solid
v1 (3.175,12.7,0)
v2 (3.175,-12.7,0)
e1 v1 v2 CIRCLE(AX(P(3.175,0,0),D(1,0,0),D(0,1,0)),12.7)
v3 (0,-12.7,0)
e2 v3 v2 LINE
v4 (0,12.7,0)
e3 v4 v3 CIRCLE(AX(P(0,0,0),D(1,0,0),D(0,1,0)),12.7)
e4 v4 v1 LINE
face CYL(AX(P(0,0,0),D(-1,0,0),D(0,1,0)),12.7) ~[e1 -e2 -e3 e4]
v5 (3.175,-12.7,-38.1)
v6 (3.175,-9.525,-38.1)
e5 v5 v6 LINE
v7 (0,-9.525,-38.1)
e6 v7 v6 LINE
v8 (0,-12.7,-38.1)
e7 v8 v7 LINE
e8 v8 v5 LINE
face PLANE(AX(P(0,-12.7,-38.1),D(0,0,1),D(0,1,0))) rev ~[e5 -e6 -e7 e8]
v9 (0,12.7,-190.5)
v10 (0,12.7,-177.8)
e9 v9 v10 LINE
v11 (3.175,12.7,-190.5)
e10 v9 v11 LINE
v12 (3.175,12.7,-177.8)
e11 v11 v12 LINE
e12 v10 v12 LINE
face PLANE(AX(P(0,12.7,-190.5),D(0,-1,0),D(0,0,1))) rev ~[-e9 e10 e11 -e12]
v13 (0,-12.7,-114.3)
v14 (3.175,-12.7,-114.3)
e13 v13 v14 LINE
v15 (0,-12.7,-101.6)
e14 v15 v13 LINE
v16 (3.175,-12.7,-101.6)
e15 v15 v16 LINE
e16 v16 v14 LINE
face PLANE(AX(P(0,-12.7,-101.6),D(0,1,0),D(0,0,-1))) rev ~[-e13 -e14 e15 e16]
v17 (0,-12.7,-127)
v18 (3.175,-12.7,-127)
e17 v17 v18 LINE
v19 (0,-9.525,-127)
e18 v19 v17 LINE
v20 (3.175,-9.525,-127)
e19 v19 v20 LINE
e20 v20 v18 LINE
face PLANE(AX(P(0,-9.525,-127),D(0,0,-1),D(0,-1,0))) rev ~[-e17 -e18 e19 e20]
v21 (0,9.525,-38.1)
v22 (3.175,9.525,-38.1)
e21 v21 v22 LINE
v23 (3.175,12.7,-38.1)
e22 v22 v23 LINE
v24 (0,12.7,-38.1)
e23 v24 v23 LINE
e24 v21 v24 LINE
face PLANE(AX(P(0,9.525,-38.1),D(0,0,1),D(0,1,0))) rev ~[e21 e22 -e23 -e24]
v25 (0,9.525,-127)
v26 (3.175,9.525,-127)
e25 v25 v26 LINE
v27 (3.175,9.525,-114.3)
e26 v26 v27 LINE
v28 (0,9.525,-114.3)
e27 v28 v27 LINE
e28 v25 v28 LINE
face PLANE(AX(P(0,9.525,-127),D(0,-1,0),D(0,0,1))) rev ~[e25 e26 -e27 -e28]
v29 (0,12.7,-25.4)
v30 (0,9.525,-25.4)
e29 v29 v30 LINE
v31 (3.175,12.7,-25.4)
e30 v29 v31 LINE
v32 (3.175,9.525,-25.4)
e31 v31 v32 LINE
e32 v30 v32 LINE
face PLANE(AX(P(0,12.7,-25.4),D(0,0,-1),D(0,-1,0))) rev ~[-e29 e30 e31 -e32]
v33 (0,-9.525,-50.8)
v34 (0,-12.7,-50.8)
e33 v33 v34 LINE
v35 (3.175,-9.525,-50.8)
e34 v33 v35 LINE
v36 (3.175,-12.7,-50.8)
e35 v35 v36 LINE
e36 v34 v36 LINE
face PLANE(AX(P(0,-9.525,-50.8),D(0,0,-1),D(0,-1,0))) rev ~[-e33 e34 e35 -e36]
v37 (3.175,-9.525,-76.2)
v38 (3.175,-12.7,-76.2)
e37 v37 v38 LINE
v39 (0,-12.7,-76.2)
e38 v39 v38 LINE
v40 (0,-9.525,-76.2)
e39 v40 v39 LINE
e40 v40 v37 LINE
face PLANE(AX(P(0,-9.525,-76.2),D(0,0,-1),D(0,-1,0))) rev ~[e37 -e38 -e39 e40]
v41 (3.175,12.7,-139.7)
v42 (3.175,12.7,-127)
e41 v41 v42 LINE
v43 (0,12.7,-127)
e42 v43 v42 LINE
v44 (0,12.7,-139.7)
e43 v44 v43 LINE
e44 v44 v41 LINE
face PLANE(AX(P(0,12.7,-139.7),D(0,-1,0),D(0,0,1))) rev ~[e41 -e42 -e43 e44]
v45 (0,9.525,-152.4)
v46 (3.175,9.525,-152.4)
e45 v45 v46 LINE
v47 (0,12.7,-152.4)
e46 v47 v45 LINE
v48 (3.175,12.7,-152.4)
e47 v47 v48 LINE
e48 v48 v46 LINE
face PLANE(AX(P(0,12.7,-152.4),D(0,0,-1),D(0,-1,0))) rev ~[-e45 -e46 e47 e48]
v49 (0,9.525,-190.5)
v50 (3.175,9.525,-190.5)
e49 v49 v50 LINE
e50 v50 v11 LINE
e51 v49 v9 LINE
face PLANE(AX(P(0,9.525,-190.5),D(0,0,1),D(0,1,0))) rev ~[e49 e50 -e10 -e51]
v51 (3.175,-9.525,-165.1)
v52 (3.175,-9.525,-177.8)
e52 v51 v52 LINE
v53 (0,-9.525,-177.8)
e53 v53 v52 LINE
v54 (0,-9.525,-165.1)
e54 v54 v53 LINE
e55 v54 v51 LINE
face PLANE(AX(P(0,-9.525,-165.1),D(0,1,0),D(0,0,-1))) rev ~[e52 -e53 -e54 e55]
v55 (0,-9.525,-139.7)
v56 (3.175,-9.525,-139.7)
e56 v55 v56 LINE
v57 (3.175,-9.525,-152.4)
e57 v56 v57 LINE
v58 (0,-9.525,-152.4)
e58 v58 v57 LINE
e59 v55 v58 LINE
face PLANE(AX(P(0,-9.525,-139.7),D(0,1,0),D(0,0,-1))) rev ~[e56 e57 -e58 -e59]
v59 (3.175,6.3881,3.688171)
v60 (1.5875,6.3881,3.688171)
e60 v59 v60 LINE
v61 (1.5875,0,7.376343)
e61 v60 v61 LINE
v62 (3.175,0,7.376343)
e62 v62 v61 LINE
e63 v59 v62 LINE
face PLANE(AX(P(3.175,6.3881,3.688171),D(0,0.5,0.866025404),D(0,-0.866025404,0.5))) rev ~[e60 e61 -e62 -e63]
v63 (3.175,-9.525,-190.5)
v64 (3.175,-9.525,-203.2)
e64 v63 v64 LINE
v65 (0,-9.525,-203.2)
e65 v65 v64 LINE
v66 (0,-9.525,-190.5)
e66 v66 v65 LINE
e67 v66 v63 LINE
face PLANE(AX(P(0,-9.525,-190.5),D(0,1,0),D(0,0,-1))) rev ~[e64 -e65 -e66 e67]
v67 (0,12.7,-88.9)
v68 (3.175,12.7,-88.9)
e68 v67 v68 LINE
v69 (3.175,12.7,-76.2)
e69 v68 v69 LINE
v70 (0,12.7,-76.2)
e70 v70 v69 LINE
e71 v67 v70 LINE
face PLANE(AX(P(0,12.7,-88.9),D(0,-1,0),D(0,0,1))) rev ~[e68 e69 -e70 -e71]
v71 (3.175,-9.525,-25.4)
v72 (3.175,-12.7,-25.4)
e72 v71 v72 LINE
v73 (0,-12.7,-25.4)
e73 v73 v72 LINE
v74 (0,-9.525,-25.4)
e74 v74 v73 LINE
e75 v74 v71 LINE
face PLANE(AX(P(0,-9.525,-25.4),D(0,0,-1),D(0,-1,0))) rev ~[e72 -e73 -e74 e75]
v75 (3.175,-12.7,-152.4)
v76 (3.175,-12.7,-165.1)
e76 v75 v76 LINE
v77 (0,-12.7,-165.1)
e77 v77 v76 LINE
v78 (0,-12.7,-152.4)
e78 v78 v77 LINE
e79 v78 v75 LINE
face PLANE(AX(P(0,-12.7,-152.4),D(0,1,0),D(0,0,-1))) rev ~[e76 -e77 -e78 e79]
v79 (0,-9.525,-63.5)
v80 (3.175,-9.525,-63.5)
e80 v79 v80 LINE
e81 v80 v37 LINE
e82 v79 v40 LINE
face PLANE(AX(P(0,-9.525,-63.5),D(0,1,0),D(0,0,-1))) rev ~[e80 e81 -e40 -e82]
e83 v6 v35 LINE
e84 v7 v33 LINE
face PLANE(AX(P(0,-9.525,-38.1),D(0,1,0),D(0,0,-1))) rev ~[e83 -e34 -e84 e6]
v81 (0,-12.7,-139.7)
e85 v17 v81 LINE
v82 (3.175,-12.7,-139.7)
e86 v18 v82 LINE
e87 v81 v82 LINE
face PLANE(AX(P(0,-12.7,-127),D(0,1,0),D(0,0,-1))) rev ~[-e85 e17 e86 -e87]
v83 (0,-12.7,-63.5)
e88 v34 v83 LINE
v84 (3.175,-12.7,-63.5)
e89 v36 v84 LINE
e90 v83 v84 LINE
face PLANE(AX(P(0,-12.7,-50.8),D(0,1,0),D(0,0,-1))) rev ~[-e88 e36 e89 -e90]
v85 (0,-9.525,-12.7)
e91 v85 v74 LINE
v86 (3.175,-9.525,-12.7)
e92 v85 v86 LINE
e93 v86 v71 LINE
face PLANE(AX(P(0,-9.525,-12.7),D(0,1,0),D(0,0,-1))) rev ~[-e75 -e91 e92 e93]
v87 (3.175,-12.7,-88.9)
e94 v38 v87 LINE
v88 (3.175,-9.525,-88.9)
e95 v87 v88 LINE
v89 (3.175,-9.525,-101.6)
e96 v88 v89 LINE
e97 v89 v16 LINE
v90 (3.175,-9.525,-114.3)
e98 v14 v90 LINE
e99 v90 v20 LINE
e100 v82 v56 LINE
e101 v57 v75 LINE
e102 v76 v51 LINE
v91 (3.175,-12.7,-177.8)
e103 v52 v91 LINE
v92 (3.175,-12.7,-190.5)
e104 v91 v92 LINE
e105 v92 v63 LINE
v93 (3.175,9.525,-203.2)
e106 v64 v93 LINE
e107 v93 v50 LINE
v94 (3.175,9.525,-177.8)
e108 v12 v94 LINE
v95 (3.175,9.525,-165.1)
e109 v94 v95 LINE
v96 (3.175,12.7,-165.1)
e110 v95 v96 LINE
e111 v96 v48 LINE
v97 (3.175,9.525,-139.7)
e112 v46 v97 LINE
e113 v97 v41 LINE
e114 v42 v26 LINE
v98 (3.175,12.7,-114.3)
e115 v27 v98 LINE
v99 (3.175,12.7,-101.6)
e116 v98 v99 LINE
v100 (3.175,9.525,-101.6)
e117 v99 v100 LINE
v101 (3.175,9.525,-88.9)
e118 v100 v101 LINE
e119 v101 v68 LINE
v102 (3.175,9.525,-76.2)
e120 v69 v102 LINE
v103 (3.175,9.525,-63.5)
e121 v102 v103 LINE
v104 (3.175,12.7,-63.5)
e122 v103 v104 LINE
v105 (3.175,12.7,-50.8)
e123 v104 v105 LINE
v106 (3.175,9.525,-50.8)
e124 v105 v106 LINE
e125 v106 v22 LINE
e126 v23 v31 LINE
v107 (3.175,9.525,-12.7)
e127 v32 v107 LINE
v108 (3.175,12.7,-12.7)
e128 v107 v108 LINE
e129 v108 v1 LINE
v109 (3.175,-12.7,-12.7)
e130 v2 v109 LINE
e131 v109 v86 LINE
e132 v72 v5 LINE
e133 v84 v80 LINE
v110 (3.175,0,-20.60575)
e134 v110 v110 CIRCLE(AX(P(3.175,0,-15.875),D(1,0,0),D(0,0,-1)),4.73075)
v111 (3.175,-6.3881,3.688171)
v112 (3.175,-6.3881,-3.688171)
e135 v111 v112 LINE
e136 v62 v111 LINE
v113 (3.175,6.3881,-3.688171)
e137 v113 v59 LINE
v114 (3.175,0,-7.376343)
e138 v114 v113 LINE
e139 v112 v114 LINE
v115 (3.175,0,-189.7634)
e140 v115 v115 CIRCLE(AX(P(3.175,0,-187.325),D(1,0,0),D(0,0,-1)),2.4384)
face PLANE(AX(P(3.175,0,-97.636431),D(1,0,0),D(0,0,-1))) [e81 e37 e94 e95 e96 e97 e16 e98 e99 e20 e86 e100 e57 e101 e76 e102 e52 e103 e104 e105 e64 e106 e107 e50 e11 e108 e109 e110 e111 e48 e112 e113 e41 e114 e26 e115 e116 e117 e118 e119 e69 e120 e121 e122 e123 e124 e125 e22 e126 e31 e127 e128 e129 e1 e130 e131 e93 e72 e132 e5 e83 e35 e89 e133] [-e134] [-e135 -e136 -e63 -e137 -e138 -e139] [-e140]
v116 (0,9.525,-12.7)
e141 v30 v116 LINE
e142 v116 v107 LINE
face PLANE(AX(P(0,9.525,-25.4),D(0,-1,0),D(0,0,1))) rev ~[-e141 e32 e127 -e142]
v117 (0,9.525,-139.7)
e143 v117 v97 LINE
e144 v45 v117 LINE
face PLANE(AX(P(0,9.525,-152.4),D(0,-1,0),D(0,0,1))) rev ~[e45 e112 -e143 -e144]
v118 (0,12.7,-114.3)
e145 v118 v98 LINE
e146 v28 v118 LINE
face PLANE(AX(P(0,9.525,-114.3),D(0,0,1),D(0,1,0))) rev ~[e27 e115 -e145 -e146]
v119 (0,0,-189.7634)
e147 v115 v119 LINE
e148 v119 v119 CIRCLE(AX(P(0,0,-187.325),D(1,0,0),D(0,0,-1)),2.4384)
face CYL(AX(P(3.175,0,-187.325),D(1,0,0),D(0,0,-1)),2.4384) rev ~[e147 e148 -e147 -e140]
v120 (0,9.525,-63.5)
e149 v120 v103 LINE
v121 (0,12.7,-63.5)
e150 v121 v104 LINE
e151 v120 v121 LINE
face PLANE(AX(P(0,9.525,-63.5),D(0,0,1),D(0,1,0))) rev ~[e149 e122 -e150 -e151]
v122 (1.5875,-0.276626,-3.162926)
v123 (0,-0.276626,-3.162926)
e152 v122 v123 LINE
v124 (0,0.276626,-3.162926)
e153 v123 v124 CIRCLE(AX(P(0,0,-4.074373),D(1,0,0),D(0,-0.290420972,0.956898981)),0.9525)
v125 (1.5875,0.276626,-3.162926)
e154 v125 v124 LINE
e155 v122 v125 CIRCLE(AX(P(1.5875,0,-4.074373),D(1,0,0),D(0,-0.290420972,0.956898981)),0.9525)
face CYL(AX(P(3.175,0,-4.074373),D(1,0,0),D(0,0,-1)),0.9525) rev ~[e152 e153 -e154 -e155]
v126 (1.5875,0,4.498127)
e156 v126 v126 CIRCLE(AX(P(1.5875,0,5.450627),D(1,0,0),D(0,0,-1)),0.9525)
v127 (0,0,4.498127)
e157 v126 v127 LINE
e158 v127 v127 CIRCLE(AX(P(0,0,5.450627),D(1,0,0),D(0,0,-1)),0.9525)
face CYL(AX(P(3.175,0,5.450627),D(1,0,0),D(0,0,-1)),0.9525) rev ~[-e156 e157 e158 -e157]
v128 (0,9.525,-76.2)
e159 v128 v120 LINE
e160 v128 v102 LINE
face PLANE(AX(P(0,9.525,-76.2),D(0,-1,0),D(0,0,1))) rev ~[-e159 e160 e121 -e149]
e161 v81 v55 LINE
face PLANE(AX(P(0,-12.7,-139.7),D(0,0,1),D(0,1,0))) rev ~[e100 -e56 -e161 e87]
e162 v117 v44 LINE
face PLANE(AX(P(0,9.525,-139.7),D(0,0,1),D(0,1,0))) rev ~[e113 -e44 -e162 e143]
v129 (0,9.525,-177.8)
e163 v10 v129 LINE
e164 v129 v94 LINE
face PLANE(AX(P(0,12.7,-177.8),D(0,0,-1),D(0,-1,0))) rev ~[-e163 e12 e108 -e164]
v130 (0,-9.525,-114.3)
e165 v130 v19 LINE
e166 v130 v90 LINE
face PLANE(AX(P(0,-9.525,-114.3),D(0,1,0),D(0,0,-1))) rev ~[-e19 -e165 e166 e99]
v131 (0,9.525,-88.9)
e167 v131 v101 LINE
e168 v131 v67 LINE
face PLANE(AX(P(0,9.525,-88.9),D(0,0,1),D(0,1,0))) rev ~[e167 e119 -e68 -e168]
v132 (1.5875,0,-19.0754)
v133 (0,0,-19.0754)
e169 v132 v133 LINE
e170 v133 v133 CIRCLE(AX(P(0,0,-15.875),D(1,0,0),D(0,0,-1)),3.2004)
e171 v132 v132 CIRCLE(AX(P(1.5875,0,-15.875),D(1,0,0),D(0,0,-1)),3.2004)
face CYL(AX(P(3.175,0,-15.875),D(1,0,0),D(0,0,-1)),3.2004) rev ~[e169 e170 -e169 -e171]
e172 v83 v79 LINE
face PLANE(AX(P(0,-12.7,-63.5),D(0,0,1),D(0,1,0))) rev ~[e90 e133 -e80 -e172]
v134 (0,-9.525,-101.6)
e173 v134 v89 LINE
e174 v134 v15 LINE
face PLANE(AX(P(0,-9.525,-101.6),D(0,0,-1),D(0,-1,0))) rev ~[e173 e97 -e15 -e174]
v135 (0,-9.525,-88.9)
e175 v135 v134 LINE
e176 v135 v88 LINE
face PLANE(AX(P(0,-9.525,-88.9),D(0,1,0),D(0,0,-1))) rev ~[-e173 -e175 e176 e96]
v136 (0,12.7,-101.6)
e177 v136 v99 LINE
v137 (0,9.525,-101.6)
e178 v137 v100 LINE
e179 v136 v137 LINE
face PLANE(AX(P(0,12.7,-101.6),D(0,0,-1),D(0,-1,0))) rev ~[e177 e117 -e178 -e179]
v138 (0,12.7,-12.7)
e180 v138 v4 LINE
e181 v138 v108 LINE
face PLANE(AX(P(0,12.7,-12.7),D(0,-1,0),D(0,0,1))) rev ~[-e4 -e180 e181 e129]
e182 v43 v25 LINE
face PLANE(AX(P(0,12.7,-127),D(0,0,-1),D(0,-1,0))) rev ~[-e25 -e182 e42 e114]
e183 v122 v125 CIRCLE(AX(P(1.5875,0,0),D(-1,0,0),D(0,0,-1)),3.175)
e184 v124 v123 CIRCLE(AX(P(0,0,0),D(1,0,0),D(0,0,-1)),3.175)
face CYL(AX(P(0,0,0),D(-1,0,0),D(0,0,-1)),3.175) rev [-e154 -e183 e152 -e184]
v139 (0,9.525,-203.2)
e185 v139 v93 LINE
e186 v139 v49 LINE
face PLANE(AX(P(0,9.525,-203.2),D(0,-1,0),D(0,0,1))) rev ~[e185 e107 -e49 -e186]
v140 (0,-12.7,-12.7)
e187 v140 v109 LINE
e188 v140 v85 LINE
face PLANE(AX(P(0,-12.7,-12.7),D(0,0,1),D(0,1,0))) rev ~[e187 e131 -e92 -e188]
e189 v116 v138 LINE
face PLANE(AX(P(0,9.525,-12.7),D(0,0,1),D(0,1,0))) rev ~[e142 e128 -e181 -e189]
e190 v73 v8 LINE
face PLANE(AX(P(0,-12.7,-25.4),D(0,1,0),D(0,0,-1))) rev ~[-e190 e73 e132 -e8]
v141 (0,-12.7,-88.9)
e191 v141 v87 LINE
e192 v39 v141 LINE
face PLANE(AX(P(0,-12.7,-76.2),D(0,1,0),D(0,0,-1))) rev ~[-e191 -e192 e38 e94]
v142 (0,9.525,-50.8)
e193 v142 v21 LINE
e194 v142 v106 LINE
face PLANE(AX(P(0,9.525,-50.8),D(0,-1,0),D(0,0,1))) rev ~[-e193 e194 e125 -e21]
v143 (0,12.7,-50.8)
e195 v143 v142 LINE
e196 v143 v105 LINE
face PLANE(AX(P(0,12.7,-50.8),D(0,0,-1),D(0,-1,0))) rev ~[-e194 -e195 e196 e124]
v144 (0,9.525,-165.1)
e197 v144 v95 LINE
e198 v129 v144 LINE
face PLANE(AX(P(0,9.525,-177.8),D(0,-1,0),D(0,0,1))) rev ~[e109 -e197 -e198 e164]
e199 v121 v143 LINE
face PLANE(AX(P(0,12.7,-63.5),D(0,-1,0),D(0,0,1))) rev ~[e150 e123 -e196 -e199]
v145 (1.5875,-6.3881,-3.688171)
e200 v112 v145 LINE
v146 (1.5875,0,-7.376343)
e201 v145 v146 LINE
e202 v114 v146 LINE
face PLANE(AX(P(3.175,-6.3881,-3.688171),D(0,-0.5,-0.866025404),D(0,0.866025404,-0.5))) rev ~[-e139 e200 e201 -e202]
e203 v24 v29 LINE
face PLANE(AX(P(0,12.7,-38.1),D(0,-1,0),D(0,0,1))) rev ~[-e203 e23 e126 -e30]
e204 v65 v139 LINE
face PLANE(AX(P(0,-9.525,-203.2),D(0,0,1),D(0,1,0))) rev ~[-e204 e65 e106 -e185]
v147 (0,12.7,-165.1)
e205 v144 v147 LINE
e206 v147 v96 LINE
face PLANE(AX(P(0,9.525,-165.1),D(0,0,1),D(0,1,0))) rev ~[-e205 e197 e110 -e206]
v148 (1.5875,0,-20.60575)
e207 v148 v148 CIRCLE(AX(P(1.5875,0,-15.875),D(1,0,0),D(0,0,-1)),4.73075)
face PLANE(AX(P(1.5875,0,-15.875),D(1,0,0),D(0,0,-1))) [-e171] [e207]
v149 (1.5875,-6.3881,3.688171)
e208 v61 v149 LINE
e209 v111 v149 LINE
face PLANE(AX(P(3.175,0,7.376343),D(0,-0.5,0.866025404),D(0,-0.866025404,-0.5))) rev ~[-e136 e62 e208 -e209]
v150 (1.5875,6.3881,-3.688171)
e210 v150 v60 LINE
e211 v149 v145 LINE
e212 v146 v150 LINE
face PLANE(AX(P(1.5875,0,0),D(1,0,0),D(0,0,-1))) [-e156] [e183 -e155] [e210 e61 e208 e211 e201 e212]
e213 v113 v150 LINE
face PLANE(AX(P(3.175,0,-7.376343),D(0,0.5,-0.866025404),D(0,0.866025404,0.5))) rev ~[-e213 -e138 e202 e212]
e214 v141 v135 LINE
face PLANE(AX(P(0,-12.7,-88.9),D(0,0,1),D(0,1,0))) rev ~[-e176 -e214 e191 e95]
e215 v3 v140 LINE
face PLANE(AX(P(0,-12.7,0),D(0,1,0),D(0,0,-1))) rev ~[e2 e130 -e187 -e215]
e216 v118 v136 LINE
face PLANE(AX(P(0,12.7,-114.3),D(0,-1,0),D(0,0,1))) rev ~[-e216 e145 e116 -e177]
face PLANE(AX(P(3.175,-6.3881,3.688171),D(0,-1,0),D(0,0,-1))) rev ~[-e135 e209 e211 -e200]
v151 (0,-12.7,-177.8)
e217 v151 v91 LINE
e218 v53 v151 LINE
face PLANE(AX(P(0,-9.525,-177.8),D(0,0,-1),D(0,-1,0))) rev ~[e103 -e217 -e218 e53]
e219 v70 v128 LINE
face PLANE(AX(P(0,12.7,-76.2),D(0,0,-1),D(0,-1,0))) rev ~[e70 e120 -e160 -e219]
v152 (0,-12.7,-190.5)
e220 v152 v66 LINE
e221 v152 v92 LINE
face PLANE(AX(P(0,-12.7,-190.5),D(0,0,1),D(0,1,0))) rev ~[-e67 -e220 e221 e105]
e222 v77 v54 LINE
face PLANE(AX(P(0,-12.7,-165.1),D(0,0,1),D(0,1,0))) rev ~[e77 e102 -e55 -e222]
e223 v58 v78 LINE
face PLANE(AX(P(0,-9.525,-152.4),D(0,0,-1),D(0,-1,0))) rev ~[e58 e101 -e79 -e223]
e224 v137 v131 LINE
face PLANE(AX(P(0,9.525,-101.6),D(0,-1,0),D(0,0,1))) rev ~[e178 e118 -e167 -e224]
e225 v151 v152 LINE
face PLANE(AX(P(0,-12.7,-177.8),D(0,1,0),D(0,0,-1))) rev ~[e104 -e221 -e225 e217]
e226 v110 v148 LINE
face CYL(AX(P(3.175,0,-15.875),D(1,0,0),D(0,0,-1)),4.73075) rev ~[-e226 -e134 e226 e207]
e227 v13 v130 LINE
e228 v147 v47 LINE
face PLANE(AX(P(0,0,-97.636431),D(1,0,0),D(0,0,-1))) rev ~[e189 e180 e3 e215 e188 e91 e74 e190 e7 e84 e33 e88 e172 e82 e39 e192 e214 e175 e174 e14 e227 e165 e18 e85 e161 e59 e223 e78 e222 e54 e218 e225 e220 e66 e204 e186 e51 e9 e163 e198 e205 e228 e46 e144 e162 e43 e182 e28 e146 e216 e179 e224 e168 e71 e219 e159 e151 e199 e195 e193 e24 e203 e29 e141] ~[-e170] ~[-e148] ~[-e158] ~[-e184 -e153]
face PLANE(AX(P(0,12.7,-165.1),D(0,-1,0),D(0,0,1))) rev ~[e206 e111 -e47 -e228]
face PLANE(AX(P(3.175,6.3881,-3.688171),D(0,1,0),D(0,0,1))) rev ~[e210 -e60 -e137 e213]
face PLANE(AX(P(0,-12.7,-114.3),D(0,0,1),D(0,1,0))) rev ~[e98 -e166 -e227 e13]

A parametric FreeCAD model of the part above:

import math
import FreeCAD as App
import Part
import Sketcher
from FreeCAD import Vector
Q = App.Units.Quantity


def add_polygon(sketch, points):
    """Adds a closed chain of lines whose ends are joined by coincident constraints."""
    first, n = sketch.GeometryCount, len(points)
    for a, b in zip(points, points[1:] + points[:1]):
        sketch.addGeometry(Part.LineSegment(App.Vector(*a, 0), App.Vector(*b, 0)), False)
    for i in range(n):
        sketch.addConstraint(Sketcher.Constraint("Coincident", first + i, 2, first + (i + 1) % n, 1))

doc = App.newDocument("Part")
params = doc.addObject("Spreadsheet::Sheet", "Params")
for row, (alias, value) in enumerate([
    ("sketch1_radius", "0.5 in"),
    ("sketch1_diameter", "0.25 in"),
    ("sketch1_height", "0.5 in"),
    ("sketch1_width", "0.75 in"),
    ("pad1_length", "0.125 in"),
    ("sketch2_diameter", "0.252 in"),
    ("sketch2_diameter2", "0.192 in"),
    ("pocket2_length", "0.0625 in"),
    ("sketch4_diameter", "0.075 in"),
], start=1):
    params.set(f"A{row}", alias)
    params.set(f"B{row}", "=" + value)
    params.setAlias(f"B{row}", alias)

body = doc.addObject("PartDesign::Body", "Body")

sketch1 = body.newObject("Sketcher::SketchObject", "Sketch")
sketch1.AttachmentSupport = (doc.getObject("YZ_Plane"), [""])
sketch1.MapMode = "FlatFace"
sketch1.addGeometry(Part.LineSegment(Vector(12.7, -12.7, 0), Vector(12.7, 0, 0)), False)
sketch1.addGeometry(Part.ArcOfCircle(Part.Circle(Vector(0, 0, 0), Vector(0, 0, 1), 12.7), math.radians(0), math.radians(180)), False)
sketch1.addGeometry(Part.LineSegment(Vector(-12.7, 0, 0), Vector(-12.7, -12.7, 0)), False)
sketch1.addGeometry(Part.LineSegment(Vector(-12.7, -12.7, 0), Vector(-9.5, -12.7, 0)), False)
sketch1.addGeometry(Part.LineSegment(Vector(-9.5, -12.7, 0), Vector(-9.5, -25.4, 0)), False)
sketch1.addGeometry(Part.LineSegment(Vector(-9.5, -25.4, 0), Vector(-12.7, -25.4, 0)), False)
sketch1.addGeometry(Part.LineSegment(Vector(-12.7, -25.4, 0), Vector(-12.7, -38.1, 0)), False)
sketch1.addGeometry(Part.LineSegment(Vector(-12.7, -38.1, 0), Vector(-9.5, -38.1, 0)), False)
sketch1.addGeometry(Part.LineSegment(Vector(-9.5, -38.1, 0), Vector(-9.5, -50.8, 0)), False)
sketch1.addGeometry(Part.LineSegment(Vector(-9.5, -50.8, 0), Vector(-12.7, -50.8, 0)), False)
sketch1.addGeometry(Part.LineSegment(Vector(-12.7, -50.8, 0), Vector(-12.7, -63.5, 0)), False)
sketch1.addGeometry(Part.LineSegment(Vector(-12.7, -63.5, 0), Vector(-9.5, -63.5, 0)), False)
sketch1.addGeometry(Part.LineSegment(Vector(-9.5, -63.5, 0), Vector(-9.5, -76.2, 0)), False)
sketch1.addGeometry(Part.LineSegment(Vector(-9.5, -76.2, 0), Vector(-12.7, -76.2, 0)), False)
sketch1.addGeometry(Part.LineSegment(Vector(-12.7, -76.2, 0), Vector(-12.7, -88.9, 0)), False)
sketch1.addGeometry(Part.LineSegment(Vector(-12.7, -88.9, 0), Vector(-9.5, -88.9, 0)), False)
sketch1.addGeometry(Part.LineSegment(Vector(-9.5, -88.9, 0), Vector(-9.5, -101.6, 0)), False)
sketch1.addGeometry(Part.LineSegment(Vector(-9.5, -101.6, 0), Vector(-12.7, -101.6, 0)), False)
sketch1.addGeometry(Part.LineSegment(Vector(-12.7, -101.6, 0), Vector(-12.7, -114.3, 0)), False)
sketch1.addGeometry(Part.LineSegment(Vector(-12.7, -114.3, 0), Vector(-9.5, -114.3, 0)), False)
sketch1.addGeometry(Part.LineSegment(Vector(-9.5, -114.3, 0), Vector(-9.5, -127, 0)), False)
sketch1.addGeometry(Part.LineSegment(Vector(-9.5, -127, 0), Vector(-12.7, -127, 0)), False)
sketch1.addGeometry(Part.LineSegment(Vector(-12.7, -127, 0), Vector(-12.7, -139.7, 0)), False)
sketch1.addGeometry(Part.LineSegment(Vector(-12.7, -139.7, 0), Vector(-9.5, -139.7, 0)), False)
sketch1.addGeometry(Part.LineSegment(Vector(-9.5, -139.7, 0), Vector(-9.5, -152.4, 0)), False)
sketch1.addGeometry(Part.LineSegment(Vector(-9.5, -152.4, 0), Vector(-12.7, -152.4, 0)), False)
sketch1.addGeometry(Part.LineSegment(Vector(-12.7, -152.4, 0), Vector(-12.7, -165.1, 0)), False)
sketch1.addGeometry(Part.LineSegment(Vector(-12.7, -165.1, 0), Vector(-9.5, -165.1, 0)), False)
sketch1.addGeometry(Part.LineSegment(Vector(-9.5, -165.1, 0), Vector(-9.5, -177.8, 0)), False)
sketch1.addGeometry(Part.LineSegment(Vector(-9.5, -177.8, 0), Vector(-12.7, -177.8, 0)), False)
sketch1.addGeometry(Part.LineSegment(Vector(-12.7, -177.8, 0), Vector(-12.7, -190.5, 0)), False)
sketch1.addGeometry(Part.LineSegment(Vector(-12.7, -190.5, 0), Vector(-9.5, -190.5, 0)), False)
sketch1.addGeometry(Part.LineSegment(Vector(-9.5, -190.5, 0), Vector(-9.5, -203.2, 0)), False)
sketch1.addGeometry(Part.LineSegment(Vector(-9.5, -203.2, 0), Vector(9.5, -203.2, 0)), False)
sketch1.addGeometry(Part.LineSegment(Vector(9.5, -203.2, 0), Vector(9.5, -190.5, 0)), False)
sketch1.addGeometry(Part.LineSegment(Vector(9.5, -190.5, 0), Vector(12.7, -190.5, 0)), False)
sketch1.addGeometry(Part.LineSegment(Vector(12.7, -190.5, 0), Vector(12.7, -177.8, 0)), False)
sketch1.addGeometry(Part.LineSegment(Vector(12.7, -177.8, 0), Vector(9.5, -177.8, 0)), False)
sketch1.addGeometry(Part.LineSegment(Vector(9.5, -177.8, 0), Vector(9.5, -165.1, 0)), False)
sketch1.addGeometry(Part.LineSegment(Vector(9.5, -165.1, 0), Vector(12.7, -165.1, 0)), False)
sketch1.addGeometry(Part.LineSegment(Vector(12.7, -165.1, 0), Vector(12.7, -152.4, 0)), False)
sketch1.addGeometry(Part.LineSegment(Vector(12.7, -152.4, 0), Vector(9.5, -152.4, 0)), False)
sketch1.addGeometry(Part.LineSegment(Vector(9.5, -152.4, 0), Vector(9.5, -139.7, 0)), False)
sketch1.addGeometry(Part.LineSegment(Vector(9.5, -139.7, 0), Vector(12.7, -139.7, 0)), False)
sketch1.addGeometry(Part.LineSegment(Vector(12.7, -139.7, 0), Vector(12.7, -127, 0)), False)
sketch1.addGeometry(Part.LineSegment(Vector(12.7, -127, 0), Vector(9.5, -127, 0)), False)
sketch1.addGeometry(Part.LineSegment(Vector(9.5, -127, 0), Vector(9.5, -114.3, 0)), False)
sketch1.addGeometry(Part.LineSegment(Vector(9.5, -114.3, 0), Vector(12.7, -114.3, 0)), False)
sketch1.addGeometry(Part.LineSegment(Vector(12.7, -114.3, 0), Vector(12.7, -101.6, 0)), False)
sketch1.addGeometry(Part.LineSegment(Vector(12.7, -101.6, 0), Vector(9.5, -101.6, 0)), False)
sketch1.addGeometry(Part.LineSegment(Vector(9.5, -101.6, 0), Vector(9.5, -88.9, 0)), False)
sketch1.addGeometry(Part.LineSegment(Vector(9.5, -88.9, 0), Vector(12.7, -88.9, 0)), False)
sketch1.addGeometry(Part.LineSegment(Vector(12.7, -88.9, 0), Vector(12.7, -76.2, 0)), False)
sketch1.addGeometry(Part.LineSegment(Vector(12.7, -76.2, 0), Vector(9.5, -76.2, 0)), False)
sketch1.addGeometry(Part.LineSegment(Vector(9.5, -76.2, 0), Vector(9.5, -63.5, 0)), False)
sketch1.addGeometry(Part.LineSegment(Vector(9.5, -63.5, 0), Vector(12.7, -63.5, 0)), False)
sketch1.addGeometry(Part.LineSegment(Vector(12.7, -63.5, 0), Vector(12.7, -50.8, 0)), False)
sketch1.addGeometry(Part.LineSegment(Vector(12.7, -50.8, 0), Vector(9.5, -50.8, 0)), False)
sketch1.addGeometry(Part.LineSegment(Vector(9.5, -50.8, 0), Vector(9.5, -38.1, 0)), False)
sketch1.addGeometry(Part.LineSegment(Vector(9.5, -38.1, 0), Vector(12.7, -38.1, 0)), False)
sketch1.addGeometry(Part.LineSegment(Vector(12.7, -38.1, 0), Vector(12.7, -25.4, 0)), False)
sketch1.addGeometry(Part.LineSegment(Vector(12.7, -25.4, 0), Vector(9.5, -25.4, 0)), False)
sketch1.addGeometry(Part.LineSegment(Vector(9.5, -25.4, 0), Vector(9.5, -12.7, 0)), False)
sketch1.addGeometry(Part.LineSegment(Vector(9.5, -12.7, 0), Vector(12.7, -12.7, 0)), False)
sketch1.addGeometry(Part.Circle(Vector(0, 0, 0), Vector(0, 0, 1), 3.2), False)
sketch1.addConstraint(Sketcher.Constraint("Tangent", 0, 2, 1, 1))
sketch1.addConstraint(Sketcher.Constraint("Tangent", 1, 2, 2, 1))
sketch1.addConstraint(Sketcher.Constraint("Coincident", 2, 2, 3, 1))
sketch1.addConstraint(Sketcher.Constraint("Coincident", 3, 2, 4, 1))
sketch1.addConstraint(Sketcher.Constraint("Coincident", 4, 2, 5, 1))
sketch1.addConstraint(Sketcher.Constraint("Coincident", 5, 2, 6, 1))
sketch1.addConstraint(Sketcher.Constraint("Coincident", 6, 2, 7, 1))
sketch1.addConstraint(Sketcher.Constraint("Coincident", 7, 2, 8, 1))
sketch1.addConstraint(Sketcher.Constraint("Coincident", 8, 2, 9, 1))
sketch1.addConstraint(Sketcher.Constraint("Coincident", 9, 2, 10, 1))
sketch1.addConstraint(Sketcher.Constraint("Coincident", 10, 2, 11, 1))
sketch1.addConstraint(Sketcher.Constraint("Coincident", 11, 2, 12, 1))
sketch1.addConstraint(Sketcher.Constraint("Coincident", 12, 2, 13, 1))
sketch1.addConstraint(Sketcher.Constraint("Coincident", 13, 2, 14, 1))
sketch1.addConstraint(Sketcher.Constraint("Coincident", 14, 2, 15, 1))
sketch1.addConstraint(Sketcher.Constraint("Coincident", 15, 2, 16, 1))
sketch1.addConstraint(Sketcher.Constraint("Coincident", 16, 2, 17, 1))
sketch1.addConstraint(Sketcher.Constraint("Coincident", 17, 2, 18, 1))
sketch1.addConstraint(Sketcher.Constraint("Coincident", 18, 2, 19, 1))
sketch1.addConstraint(Sketcher.Constraint("Coincident", 19, 2, 20, 1))
sketch1.addConstraint(Sketcher.Constraint("Coincident", 20, 2, 21, 1))
sketch1.addConstraint(Sketcher.Constraint("Coincident", 21, 2, 22, 1))
sketch1.addConstraint(Sketcher.Constraint("Coincident", 22, 2, 23, 1))
sketch1.addConstraint(Sketcher.Constraint("Coincident", 23, 2, 24, 1))
sketch1.addConstraint(Sketcher.Constraint("Coincident", 24, 2, 25, 1))
sketch1.addConstraint(Sketcher.Constraint("Coincident", 25, 2, 26, 1))
sketch1.addConstraint(Sketcher.Constraint("Coincident", 26, 2, 27, 1))
sketch1.addConstraint(Sketcher.Constraint("Coincident", 27, 2, 28, 1))
sketch1.addConstraint(Sketcher.Constraint("Coincident", 28, 2, 29, 1))
sketch1.addConstraint(Sketcher.Constraint("Coincident", 29, 2, 30, 1))
sketch1.addConstraint(Sketcher.Constraint("Coincident", 30, 2, 31, 1))
sketch1.addConstraint(Sketcher.Constraint("Coincident", 31, 2, 32, 1))
sketch1.addConstraint(Sketcher.Constraint("Coincident", 32, 2, 33, 1))
sketch1.addConstraint(Sketcher.Constraint("Coincident", 33, 2, 34, 1))
sketch1.addConstraint(Sketcher.Constraint("Coincident", 34, 2, 35, 1))
sketch1.addConstraint(Sketcher.Constraint("Coincident", 35, 2, 36, 1))
sketch1.addConstraint(Sketcher.Constraint("Coincident", 36, 2, 37, 1))
sketch1.addConstraint(Sketcher.Constraint("Coincident", 37, 2, 38, 1))
sketch1.addConstraint(Sketcher.Constraint("Coincident", 38, 2, 39, 1))
sketch1.addConstraint(Sketcher.Constraint("Coincident", 39, 2, 40, 1))
sketch1.addConstraint(Sketcher.Constraint("Coincident", 40, 2, 41, 1))
sketch1.addConstraint(Sketcher.Constraint("Coincident", 41, 2, 42, 1))
sketch1.addConstraint(Sketcher.Constraint("Coincident", 42, 2, 43, 1))
sketch1.addConstraint(Sketcher.Constraint("Coincident", 43, 2, 44, 1))
sketch1.addConstraint(Sketcher.Constraint("Coincident", 44, 2, 45, 1))
sketch1.addConstraint(Sketcher.Constraint("Coincident", 45, 2, 46, 1))
sketch1.addConstraint(Sketcher.Constraint("Coincident", 46, 2, 47, 1))
sketch1.addConstraint(Sketcher.Constraint("Coincident", 47, 2, 48, 1))
sketch1.addConstraint(Sketcher.Constraint("Coincident", 48, 2, 49, 1))
sketch1.addConstraint(Sketcher.Constraint("Coincident", 49, 2, 50, 1))
sketch1.addConstraint(Sketcher.Constraint("Coincident", 50, 2, 51, 1))
sketch1.addConstraint(Sketcher.Constraint("Coincident", 51, 2, 52, 1))
sketch1.addConstraint(Sketcher.Constraint("Coincident", 52, 2, 53, 1))
sketch1.addConstraint(Sketcher.Constraint("Coincident", 53, 2, 54, 1))
sketch1.addConstraint(Sketcher.Constraint("Coincident", 54, 2, 55, 1))
sketch1.addConstraint(Sketcher.Constraint("Coincident", 55, 2, 56, 1))
sketch1.addConstraint(Sketcher.Constraint("Coincident", 56, 2, 57, 1))
sketch1.addConstraint(Sketcher.Constraint("Coincident", 57, 2, 58, 1))
sketch1.addConstraint(Sketcher.Constraint("Coincident", 58, 2, 59, 1))
sketch1.addConstraint(Sketcher.Constraint("Coincident", 59, 2, 60, 1))
sketch1.addConstraint(Sketcher.Constraint("Coincident", 60, 2, 61, 1))
sketch1.addConstraint(Sketcher.Constraint("Coincident", 61, 2, 62, 1))
sketch1.addConstraint(Sketcher.Constraint("Coincident", 62, 2, 63, 1))
sketch1.addConstraint(Sketcher.Constraint("Coincident", 63, 2, 0, 1))
sketch1.addConstraint(Sketcher.Constraint("Vertical", 0))
sketch1.addConstraint(Sketcher.Constraint("Vertical", 2))
sketch1.addConstraint(Sketcher.Constraint("Horizontal", 3))
sketch1.addConstraint(Sketcher.Constraint("Vertical", 4))
sketch1.addConstraint(Sketcher.Constraint("Horizontal", 5))
sketch1.addConstraint(Sketcher.Constraint("Vertical", 6))
sketch1.addConstraint(Sketcher.Constraint("Horizontal", 7))
sketch1.addConstraint(Sketcher.Constraint("Vertical", 8))
sketch1.addConstraint(Sketcher.Constraint("Horizontal", 9))
sketch1.addConstraint(Sketcher.Constraint("Vertical", 10))
sketch1.addConstraint(Sketcher.Constraint("Horizontal", 11))
sketch1.addConstraint(Sketcher.Constraint("Vertical", 12))
sketch1.addConstraint(Sketcher.Constraint("Horizontal", 13))
sketch1.addConstraint(Sketcher.Constraint("Vertical", 14))
sketch1.addConstraint(Sketcher.Constraint("Horizontal", 15))
sketch1.addConstraint(Sketcher.Constraint("Vertical", 16))
sketch1.addConstraint(Sketcher.Constraint("Horizontal", 17))
sketch1.addConstraint(Sketcher.Constraint("Vertical", 18))
sketch1.addConstraint(Sketcher.Constraint("Horizontal", 19))
sketch1.addConstraint(Sketcher.Constraint("Vertical", 20))
sketch1.addConstraint(Sketcher.Constraint("Horizontal", 21))
sketch1.addConstraint(Sketcher.Constraint("Vertical", 22))
sketch1.addConstraint(Sketcher.Constraint("Horizontal", 23))
sketch1.addConstraint(Sketcher.Constraint("Vertical", 24))
sketch1.addConstraint(Sketcher.Constraint("Horizontal", 25))
sketch1.addConstraint(Sketcher.Constraint("Vertical", 26))
sketch1.addConstraint(Sketcher.Constraint("Horizontal", 27))
sketch1.addConstraint(Sketcher.Constraint("Vertical", 28))
sketch1.addConstraint(Sketcher.Constraint("Horizontal", 29))
sketch1.addConstraint(Sketcher.Constraint("Vertical", 30))
sketch1.addConstraint(Sketcher.Constraint("Horizontal", 31))
sketch1.addConstraint(Sketcher.Constraint("Vertical", 32))
sketch1.addConstraint(Sketcher.Constraint("Horizontal", 33))
sketch1.addConstraint(Sketcher.Constraint("Vertical", 34))
sketch1.addConstraint(Sketcher.Constraint("Horizontal", 35))
sketch1.addConstraint(Sketcher.Constraint("Vertical", 36))
sketch1.addConstraint(Sketcher.Constraint("Horizontal", 37))
sketch1.addConstraint(Sketcher.Constraint("Vertical", 38))
sketch1.addConstraint(Sketcher.Constraint("Horizontal", 39))
sketch1.addConstraint(Sketcher.Constraint("Vertical", 40))
sketch1.addConstraint(Sketcher.Constraint("Horizontal", 41))
sketch1.addConstraint(Sketcher.Constraint("Vertical", 42))
sketch1.addConstraint(Sketcher.Constraint("Horizontal", 43))
sketch1.addConstraint(Sketcher.Constraint("Vertical", 44))
sketch1.addConstraint(Sketcher.Constraint("Horizontal", 45))
sketch1.addConstraint(Sketcher.Constraint("Vertical", 46))
sketch1.addConstraint(Sketcher.Constraint("Horizontal", 47))
sketch1.addConstraint(Sketcher.Constraint("Vertical", 48))
sketch1.addConstraint(Sketcher.Constraint("Horizontal", 49))
sketch1.addConstraint(Sketcher.Constraint("Vertical", 50))
sketch1.addConstraint(Sketcher.Constraint("Horizontal", 51))
sketch1.addConstraint(Sketcher.Constraint("Vertical", 52))
sketch1.addConstraint(Sketcher.Constraint("Horizontal", 53))
sketch1.addConstraint(Sketcher.Constraint("Vertical", 54))
sketch1.addConstraint(Sketcher.Constraint("Horizontal", 55))
sketch1.addConstraint(Sketcher.Constraint("Vertical", 56))
sketch1.addConstraint(Sketcher.Constraint("Horizontal", 57))
sketch1.addConstraint(Sketcher.Constraint("Vertical", 58))
sketch1.addConstraint(Sketcher.Constraint("Horizontal", 59))
sketch1.addConstraint(Sketcher.Constraint("Vertical", 60))
sketch1.addConstraint(Sketcher.Constraint("Horizontal", 61))
sketch1.addConstraint(Sketcher.Constraint("Vertical", 62))
sketch1.addConstraint(Sketcher.Constraint("Horizontal", 63))
sketch1.addConstraint(Sketcher.Constraint("Coincident", 1, 3, -1, 1))
sketch1.addConstraint(Sketcher.Constraint("Coincident", 64, 3, -1, 1))
sketch1.addConstraint(Sketcher.Constraint("Symmetric", 31, 2, 34, 2, -2))
sketch1.addConstraint(Sketcher.Constraint("Symmetric", 29, 2, 36, 2, -2))
sketch1.addConstraint(Sketcher.Constraint("Symmetric", 27, 2, 38, 2, -2))
sketch1.addConstraint(Sketcher.Constraint("Symmetric", 25, 2, 40, 2, -2))
sketch1.addConstraint(Sketcher.Constraint("Symmetric", 23, 2, 42, 2, -2))
sketch1.addConstraint(Sketcher.Constraint("Symmetric", 21, 2, 44, 2, -2))
sketch1.addConstraint(Sketcher.Constraint("Symmetric", 19, 2, 46, 2, -2))
sketch1.addConstraint(Sketcher.Constraint("Symmetric", 17, 2, 48, 2, -2))
sketch1.addConstraint(Sketcher.Constraint("Symmetric", 15, 2, 50, 2, -2))
sketch1.addConstraint(Sketcher.Constraint("Symmetric", 13, 2, 52, 2, -2))
sketch1.addConstraint(Sketcher.Constraint("Symmetric", 11, 2, 54, 2, -2))
sketch1.addConstraint(Sketcher.Constraint("Symmetric", 9, 2, 56, 2, -2))
sketch1.addConstraint(Sketcher.Constraint("Symmetric", 7, 2, 58, 2, -2))
sketch1.addConstraint(Sketcher.Constraint("Symmetric", 5, 2, 60, 2, -2))
sketch1.addConstraint(Sketcher.Constraint("Symmetric", 3, 2, 62, 2, -2))
sketch1.addConstraint(Sketcher.Constraint("Vertical", 2, 2, 5, 2))
sketch1.addConstraint(Sketcher.Constraint("Vertical", 4, 2, 7, 2))
sketch1.addConstraint(Sketcher.Constraint("Vertical", 6, 2, 9, 2))
sketch1.addConstraint(Sketcher.Constraint("Vertical", 8, 2, 11, 2))
sketch1.addConstraint(Sketcher.Constraint("Vertical", 10, 2, 13, 2))
sketch1.addConstraint(Sketcher.Constraint("Vertical", 12, 2, 15, 2))
sketch1.addConstraint(Sketcher.Constraint("Vertical", 14, 2, 17, 2))
sketch1.addConstraint(Sketcher.Constraint("Vertical", 16, 2, 19, 2))
sketch1.addConstraint(Sketcher.Constraint("Vertical", 18, 2, 21, 2))
sketch1.addConstraint(Sketcher.Constraint("Vertical", 20, 2, 23, 2))
sketch1.addConstraint(Sketcher.Constraint("Vertical", 22, 2, 25, 2))
sketch1.addConstraint(Sketcher.Constraint("Vertical", 24, 2, 27, 2))
sketch1.addConstraint(Sketcher.Constraint("Vertical", 26, 2, 29, 2))
sketch1.addConstraint(Sketcher.Constraint("Vertical", 28, 2, 31, 2))
sketch1.addConstraint(Sketcher.Constraint("Equal", 2, 4))
sketch1.addConstraint(Sketcher.Constraint("Equal", 4, 6))
sketch1.addConstraint(Sketcher.Constraint("Equal", 6, 8))
sketch1.addConstraint(Sketcher.Constraint("Equal", 8, 10))
sketch1.addConstraint(Sketcher.Constraint("Equal", 10, 12))
sketch1.addConstraint(Sketcher.Constraint("Equal", 12, 14))
sketch1.addConstraint(Sketcher.Constraint("Equal", 14, 16))
sketch1.addConstraint(Sketcher.Constraint("Equal", 16, 18))
sketch1.addConstraint(Sketcher.Constraint("Equal", 18, 20))
sketch1.addConstraint(Sketcher.Constraint("Equal", 20, 22))
sketch1.addConstraint(Sketcher.Constraint("Equal", 22, 24))
sketch1.addConstraint(Sketcher.Constraint("Equal", 24, 26))
sketch1.addConstraint(Sketcher.Constraint("Equal", 26, 28))
sketch1.addConstraint(Sketcher.Constraint("Equal", 28, 30))
sketch1.addConstraint(Sketcher.Constraint("Equal", 30, 32))
sketch1.addConstraint(Sketcher.Constraint("Radius", 1, Q("0.5 in")))
sketch1.addConstraint(Sketcher.Constraint("Diameter", 64, Q("0.25 in")))
sketch1.addConstraint(Sketcher.Constraint("DistanceY", 0, 1, 0, 2, Q("0.5 in")))
sketch1.addConstraint(Sketcher.Constraint("DistanceX", 33, 1, 33, 2, Q("0.75 in")))
sketch1.setExpression("Constraints[173]", "Params.sketch1_radius")
sketch1.setExpression("Constraints[174]", "Params.sketch1_diameter")
sketch1.setExpression("Constraints[175]", "Params.sketch1_height")
sketch1.setExpression("Constraints[176]", "Params.sketch1_width")
pad1 = body.newObject("PartDesign::Pad", "Pad")
pad1.Profile = sketch1
pad1.setExpression("Length", "Params.pad1_length")

sketch2 = body.newObject("Sketcher::SketchObject", "Sketch001")
sketch2.AttachmentSupport = (doc.getObject("YZ_Plane"), [""])
sketch2.MapMode = "FlatFace"
sketch2.AttachmentOffset = App.Placement(Vector(0, 0, 0.125 * 25.4), App.Rotation())
sketch2.addGeometry(Part.Circle(Vector(0, -15.9, 0), Vector(0, 0, 1), 3.2), False)
sketch2.addGeometry(Part.Circle(Vector(0, -187.3, 0), Vector(0, 0, 1), 2.4), False)
sketch2.addConstraint(Sketcher.Constraint("PointOnObject", 0, 3, -2))
sketch2.addConstraint(Sketcher.Constraint("PointOnObject", 1, 3, -2))
sketch2.addConstraint(Sketcher.Constraint("Diameter", 0, Q("0.252 in")))
sketch2.addConstraint(Sketcher.Constraint("Diameter", 1, Q("0.192 in")))
sketch2.addConstraint(Sketcher.Constraint("DistanceY", 1, 3, 0, 3, Q("6.75 in")))
sketch2.addConstraint(Sketcher.Constraint("DistanceY", 0, 3, -1, 1, Q("0.625 in")))
sketch2.setExpression("Constraints[2]", "Params.sketch2_diameter")
sketch2.setExpression("Constraints[3]", "Params.sketch2_diameter2")
pocket1 = body.newObject("PartDesign::Pocket", "Pocket")
pocket1.Profile = sketch2
pocket1.Type = "ThroughAll"

sketch3 = body.newObject("Sketcher::SketchObject", "Sketch002")
sketch3.AttachmentSupport = (doc.getObject("YZ_Plane"), [""])
sketch3.MapMode = "FlatFace"
sketch3.AttachmentOffset = App.Placement(Vector(0, 0, 0.125 * 25.4), App.Rotation())
sketch3.addGeometry(Part.Circle(Vector(0, -15.9, 0), Vector(0, 0, 1), 4.7), False)
add_polygon(sketch3, [(-6.4, -3.7), (0, -7.4), (6.4, -3.7), (6.4, 3.7), (0, 7.4), (-6.4, 3.7)])
sketch3.addConstraint(Sketcher.Constraint("Vertical", 3))
sketch3.addConstraint(Sketcher.Constraint("Vertical", 6))
sketch3.addConstraint(Sketcher.Constraint("Symmetric", 1, 2, 4, 2, -1, 1))
sketch3.addConstraint(Sketcher.Constraint("Symmetric", 2, 2, 5, 2, -1, 1))
sketch3.addConstraint(Sketcher.Constraint("PointOnObject", 0, 3, -2))
sketch3.addConstraint(Sketcher.Constraint("PointOnObject", 1, 2, -2))
sketch3.addConstraint(Sketcher.Constraint("Parallel", 1, 4))
sketch3.addConstraint(Sketcher.Constraint("Horizontal", 3, 2, 5, 2))
sketch3.addConstraint(Sketcher.Constraint("Angle", 1, Q("-30 deg")))
sketch3.addConstraint(Sketcher.Constraint("Diameter", 0, Q("0.3725 in")))
sketch3.addConstraint(Sketcher.Constraint("DistanceY", 0, 3, -1, 1, Q("0.625 in")))
sketch3.addConstraint(Sketcher.Constraint("DistanceX", 5, 2, 3, 2, Q("0.503 in")))
sketch3.addConstraint(Sketcher.Constraint("DistanceY", 3, 1, 3, 2, 7.376343))
pocket2 = body.newObject("PartDesign::Pocket", "Pocket001")
pocket2.Profile = sketch3
pocket2.setExpression("Length", "Params.pocket2_length")

sketch4 = body.newObject("Sketcher::SketchObject", "Sketch003")
sketch4.AttachmentSupport = (doc.getObject("YZ_Plane"), [""])
sketch4.MapMode = "FlatFace"
sketch4.AttachmentOffset = App.Placement(Vector(0, 0, 0.125 * 25.4), App.Rotation())
sketch4.addGeometry(Part.Circle(Vector(0, 5.5, 0), Vector(0, 0, 1), 1), False)
sketch4.addGeometry(Part.Circle(Vector(0, -4.1, 0), Vector(0, 0, 1), 1), False)
sketch4.addConstraint(Sketcher.Constraint("Equal", 0, 1))
sketch4.addConstraint(Sketcher.Constraint("PointOnObject", 0, 3, -2))
sketch4.addConstraint(Sketcher.Constraint("PointOnObject", 1, 3, -2))
sketch4.addConstraint(Sketcher.Constraint("Diameter", 0, Q("0.075 in")))
sketch4.addConstraint(Sketcher.Constraint("DistanceY", 1, 3, 0, 3, Q("0.375 in")))
sketch4.addConstraint(Sketcher.Constraint("DistanceY", -1, 1, 0, 3, 5.450627))
sketch4.setExpression("Constraints[3]", "Params.sketch4_diameter")
pocket3 = body.newObject("PartDesign::Pocket", "Pocket002")
pocket3.Profile = sketch4
pocket3.Type = "ThroughAll"

doc.recompute()
